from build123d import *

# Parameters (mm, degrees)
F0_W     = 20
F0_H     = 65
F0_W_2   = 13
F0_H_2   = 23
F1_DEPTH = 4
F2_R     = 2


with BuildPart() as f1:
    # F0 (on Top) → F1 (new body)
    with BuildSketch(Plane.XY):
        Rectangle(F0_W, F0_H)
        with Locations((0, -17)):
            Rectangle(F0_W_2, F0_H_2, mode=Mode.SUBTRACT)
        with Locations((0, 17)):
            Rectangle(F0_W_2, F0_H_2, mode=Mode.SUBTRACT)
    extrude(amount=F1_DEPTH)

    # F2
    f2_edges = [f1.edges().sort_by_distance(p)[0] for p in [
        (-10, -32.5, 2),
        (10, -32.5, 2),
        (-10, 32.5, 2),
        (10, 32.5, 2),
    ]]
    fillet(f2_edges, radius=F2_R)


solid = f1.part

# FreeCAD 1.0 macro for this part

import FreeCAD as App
import Part
import Sketcher


def edges_at(feature, points):
    """Names of the edges that pass closest to the given points."""
    edges = feature.Shape.Edges
    near = lambda p: min(range(len(edges)), key=lambda i: edges[i].distToShape(Part.Vertex(*p))[0])
    return sorted({f"Edge{near(p) + 1}" for p in points})

doc = App.newDocument("Part")
body = doc.addObject("PartDesign::Body", "Body")

# Sketch on XY plane
sketch1 = body.newObject("Sketcher::SketchObject", "Sketch")
sketch1.AttachmentSupport = (doc.getObject("XY_Plane"), [""])
sketch1.MapMode = "FlatFace"
sketch1.addGeometry([
    Part.LineSegment(App.Vector(-10, 32.5, 0), App.Vector(-10, -32.5, 0)),  # 0
    Part.LineSegment(App.Vector(-10, -32.5, 0), App.Vector(10, -32.5, 0)),  # 1
    Part.LineSegment(App.Vector(10, -32.5, 0), App.Vector(10, 32.5, 0)),  # 2
    Part.LineSegment(App.Vector(10, 32.5, 0), App.Vector(-10, 32.5, 0)),  # 3
    Part.LineSegment(App.Vector(6.5, -28.5, 0), App.Vector(-6.5, -28.5, 0)),  # 4
    Part.LineSegment(App.Vector(-6.5, -28.5, 0), App.Vector(-6.5, -5.5, 0)),  # 5
    Part.LineSegment(App.Vector(-6.5, -5.5, 0), App.Vector(6.5, -5.5, 0)),  # 6
    Part.LineSegment(App.Vector(6.5, -5.5, 0), App.Vector(6.5, -28.5, 0)),  # 7
    Part.LineSegment(App.Vector(6.5, 5.5, 0), App.Vector(-6.5, 5.5, 0)),  # 8
    Part.LineSegment(App.Vector(-6.5, 5.5, 0), App.Vector(-6.5, 28.5, 0)),  # 9
    Part.LineSegment(App.Vector(-6.5, 28.5, 0), App.Vector(6.5, 28.5, 0)),  # 10
    Part.LineSegment(App.Vector(6.5, 28.5, 0), App.Vector(6.5, 5.5, 0)),  # 11
], False)
sketch1.addConstraint([
    Sketcher.Constraint("Coincident", 0, 2, 1, 1),
    Sketcher.Constraint("Coincident", 1, 2, 2, 1),
    Sketcher.Constraint("Coincident", 2, 2, 3, 1),
    Sketcher.Constraint("Coincident", 3, 2, 0, 1),
    Sketcher.Constraint("Coincident", 4, 2, 5, 1),
    Sketcher.Constraint("Coincident", 5, 2, 6, 1),
    Sketcher.Constraint("Coincident", 6, 2, 7, 1),
    Sketcher.Constraint("Coincident", 7, 2, 4, 1),
    Sketcher.Constraint("Coincident", 8, 2, 9, 1),
    Sketcher.Constraint("Coincident", 9, 2, 10, 1),
    Sketcher.Constraint("Coincident", 10, 2, 11, 1),
    Sketcher.Constraint("Coincident", 11, 2, 8, 1),
    Sketcher.Constraint("Vertical", 0),
    Sketcher.Constraint("Horizontal", 1),
    Sketcher.Constraint("Vertical", 2),
    Sketcher.Constraint("Horizontal", 3),
    Sketcher.Constraint("Horizontal", 4),
    Sketcher.Constraint("Vertical", 5),
    Sketcher.Constraint("Horizontal", 6),
    Sketcher.Constraint("Vertical", 7),
    Sketcher.Constraint("Horizontal", 8),
    Sketcher.Constraint("Vertical", 9),
    Sketcher.Constraint("Horizontal", 10),
    Sketcher.Constraint("Vertical", 11),
    Sketcher.Constraint("Symmetric", 0, 2, 2, 2, -1, 1),
    Sketcher.Constraint("Symmetric", 6, 2, 8, 2, -1, 1),
    Sketcher.Constraint("Symmetric", 4, 2, 10, 2, -1, 1),
    Sketcher.Constraint("Vertical", 5, 2, 8, 2),
    Sketcher.Constraint("DistanceX", 1, 1, 1, 2, 20.0),
    Sketcher.Constraint("DistanceX", 4, 2, 4, 1, 13.0),
    Sketcher.Constraint("DistanceY", 0, 2, 0, 1, 65.0),
    Sketcher.Constraint("DistanceY", 5, 1, 5, 2, 23.0),
    Sketcher.Constraint("DistanceY", 0, 2, 4, 2, 4.0),
])
pad1 = body.newObject("PartDesign::Pad", "Pad")
pad1.Profile = sketch1
pad1.Length = 4
doc.recompute()

fillet = body.newObject("PartDesign::Fillet", "Fillet")
fillet.Base = (pad1, edges_at(pad1, [
    (-10, -32.5, 2),
    (10, -32.5, 2),
    (-10, 32.5, 2),
    (10, 32.5, 2),
]))
fillet.Radius = 2

doc.recompute()
